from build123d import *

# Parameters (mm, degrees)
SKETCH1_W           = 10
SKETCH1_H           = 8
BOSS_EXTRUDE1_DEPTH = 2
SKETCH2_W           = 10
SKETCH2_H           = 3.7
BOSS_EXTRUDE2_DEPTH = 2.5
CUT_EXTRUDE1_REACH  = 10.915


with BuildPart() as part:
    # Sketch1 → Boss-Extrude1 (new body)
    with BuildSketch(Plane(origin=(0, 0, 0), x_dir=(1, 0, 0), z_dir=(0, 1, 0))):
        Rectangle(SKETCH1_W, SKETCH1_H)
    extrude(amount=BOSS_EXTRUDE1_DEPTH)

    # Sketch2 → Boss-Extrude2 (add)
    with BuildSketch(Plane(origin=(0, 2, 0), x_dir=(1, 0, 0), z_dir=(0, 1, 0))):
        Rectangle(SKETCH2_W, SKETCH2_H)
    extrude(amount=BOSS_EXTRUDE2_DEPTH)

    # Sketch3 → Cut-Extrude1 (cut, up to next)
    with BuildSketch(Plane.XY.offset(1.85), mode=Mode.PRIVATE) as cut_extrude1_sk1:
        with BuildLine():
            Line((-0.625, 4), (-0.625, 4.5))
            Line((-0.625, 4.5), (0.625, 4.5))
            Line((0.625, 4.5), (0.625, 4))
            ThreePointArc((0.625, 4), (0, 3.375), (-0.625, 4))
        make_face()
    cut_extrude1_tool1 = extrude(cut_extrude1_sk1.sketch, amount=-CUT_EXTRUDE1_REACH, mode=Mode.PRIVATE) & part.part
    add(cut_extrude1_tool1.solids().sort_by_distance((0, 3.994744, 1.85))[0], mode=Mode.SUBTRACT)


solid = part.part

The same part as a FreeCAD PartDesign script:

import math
import FreeCAD as App
import Part
import Sketcher
from FreeCAD import Vector
Q = App.Units.Quantity


def add_polygon(sketch, points):
    """Adds a closed chain of lines whose ends are joined by coincident constraints."""
    first, n = sketch.GeometryCount, len(points)
    for a, b in zip(points, points[1:] + points[:1]):
        sketch.addGeometry(Part.LineSegment(App.Vector(*a, 0), App.Vector(*b, 0)), False)
    for i in range(n):
        sketch.addConstraint(Sketcher.Constraint("Coincident", first + i, 2, first + (i + 1) % n, 1))

doc = App.newDocument("Part")
body = doc.addObject("PartDesign::Body", "Body")

sketch1 = body.newObject("Sketcher::SketchObject", "Sketch")
sketch1.AttachmentSupport = (doc.getObject("XZ_Plane"), [""])
sketch1.MapMode = "FlatFace"
add_polygon(sketch1, [(-5, -4), (-5, 4), (5, 4), (5, -4)])
sketch1.addConstraint([
    Sketcher.Constraint("Vertical", 0),
    Sketcher.Constraint("Horizontal", 1),
    Sketcher.Constraint("Vertical", 2),
    Sketcher.Constraint("Horizontal", 3),
    Sketcher.Constraint("Symmetric", 0, 2, 2, 2, -1, 1),
    Sketcher.Constraint("DistanceX", 1, 1, 1, 2, Q("10 mm")),
    Sketcher.Constraint("DistanceY", 0, 1, 0, 2, Q("8 mm")),
])
pad1 = body.newObject("PartDesign::Pad", "Pad")
pad1.Profile = sketch1
pad1.Length = 2
pad1.Reversed = True

sketch2 = body.newObject("Sketcher::SketchObject", "Sketch001")
sketch2.AttachmentSupport = (doc.getObject("XZ_Plane"), [""])
sketch2.MapMode = "FlatFace"
sketch2.AttachmentOffset = App.Placement(Vector(0, 0, -2), App.Rotation())
add_polygon(sketch2, [(-5, -1.9), (-5, 1.9), (5, 1.9), (5, -1.9)])
sketch2.addConstraint([
    Sketcher.Constraint("Vertical", 0),
    Sketcher.Constraint("Horizontal", 1),
    Sketcher.Constraint("Vertical", 2),
    Sketcher.Constraint("Horizontal", 3),
    Sketcher.Constraint("Symmetric", 0, 2, 2, 2, -1, 1),
    Sketcher.Constraint("DistanceX", 1, 1, 1, 2, Q("10 mm")),
    Sketcher.Constraint("DistanceY", 0, 1, 0, 2, Q("3.7 mm")),
])
pad2 = body.newObject("PartDesign::Pad", "Pad001")
pad2.Profile = sketch2
pad2.Length = 2.5
pad2.Reversed = True

sketch3 = body.newObject("Sketcher::SketchObject", "Sketch002")
sketch3.AttachmentSupport = (doc.getObject("XY_Plane"), [""])
sketch3.MapMode = "FlatFace"
sketch3.AttachmentOffset = App.Placement(Vector(0, 0, 1.85), App.Rotation())
sketch3.addGeometry([
    Part.LineSegment(Vector(-0.6, 4.5, 0), Vector(-0.6, 4, 0)),
    Part.ArcOfCircle(Part.Circle(Vector(0, 4, 0), Vector(0, 0, 1), 0.6), math.radians(180), math.radians(360)),
    Part.LineSegment(Vector(0.6, 4, 0), Vector(0.6, 4.5, 0)),
    Part.LineSegment(Vector(0.6, 4.5, 0), Vector(-0.6, 4.5, 0)),
], False)
sketch3.addConstraint([
    Sketcher.Constraint("Tangent", 0, 2, 1, 1),
    Sketcher.Constraint("Tangent", 1, 2, 2, 1),
    Sketcher.Constraint("Coincident", 2, 2, 3, 1),
    Sketcher.Constraint("Coincident", 3, 2, 0, 1),
    Sketcher.Constraint("Vertical", 0),
    Sketcher.Constraint("Vertical", 2),
    Sketcher.Constraint("Horizontal", 3),
    Sketcher.Constraint("PointOnObject", 1, 3, -2),
    Sketcher.Constraint("DistanceY", 0, 2, 0, 1, Q("0.5 mm")),
    Sketcher.Constraint("DistanceY", -1, 1, 1, 3, Q("4 mm")),
    Sketcher.Constraint("Radius", 1, Q("0.625 mm")),
])
pocket1 = body.newObject("PartDesign::Pocket", "Pocket")
pocket1.Profile = sketch3
pocket1.Type = "UpToFirst"

doc.recompute()
